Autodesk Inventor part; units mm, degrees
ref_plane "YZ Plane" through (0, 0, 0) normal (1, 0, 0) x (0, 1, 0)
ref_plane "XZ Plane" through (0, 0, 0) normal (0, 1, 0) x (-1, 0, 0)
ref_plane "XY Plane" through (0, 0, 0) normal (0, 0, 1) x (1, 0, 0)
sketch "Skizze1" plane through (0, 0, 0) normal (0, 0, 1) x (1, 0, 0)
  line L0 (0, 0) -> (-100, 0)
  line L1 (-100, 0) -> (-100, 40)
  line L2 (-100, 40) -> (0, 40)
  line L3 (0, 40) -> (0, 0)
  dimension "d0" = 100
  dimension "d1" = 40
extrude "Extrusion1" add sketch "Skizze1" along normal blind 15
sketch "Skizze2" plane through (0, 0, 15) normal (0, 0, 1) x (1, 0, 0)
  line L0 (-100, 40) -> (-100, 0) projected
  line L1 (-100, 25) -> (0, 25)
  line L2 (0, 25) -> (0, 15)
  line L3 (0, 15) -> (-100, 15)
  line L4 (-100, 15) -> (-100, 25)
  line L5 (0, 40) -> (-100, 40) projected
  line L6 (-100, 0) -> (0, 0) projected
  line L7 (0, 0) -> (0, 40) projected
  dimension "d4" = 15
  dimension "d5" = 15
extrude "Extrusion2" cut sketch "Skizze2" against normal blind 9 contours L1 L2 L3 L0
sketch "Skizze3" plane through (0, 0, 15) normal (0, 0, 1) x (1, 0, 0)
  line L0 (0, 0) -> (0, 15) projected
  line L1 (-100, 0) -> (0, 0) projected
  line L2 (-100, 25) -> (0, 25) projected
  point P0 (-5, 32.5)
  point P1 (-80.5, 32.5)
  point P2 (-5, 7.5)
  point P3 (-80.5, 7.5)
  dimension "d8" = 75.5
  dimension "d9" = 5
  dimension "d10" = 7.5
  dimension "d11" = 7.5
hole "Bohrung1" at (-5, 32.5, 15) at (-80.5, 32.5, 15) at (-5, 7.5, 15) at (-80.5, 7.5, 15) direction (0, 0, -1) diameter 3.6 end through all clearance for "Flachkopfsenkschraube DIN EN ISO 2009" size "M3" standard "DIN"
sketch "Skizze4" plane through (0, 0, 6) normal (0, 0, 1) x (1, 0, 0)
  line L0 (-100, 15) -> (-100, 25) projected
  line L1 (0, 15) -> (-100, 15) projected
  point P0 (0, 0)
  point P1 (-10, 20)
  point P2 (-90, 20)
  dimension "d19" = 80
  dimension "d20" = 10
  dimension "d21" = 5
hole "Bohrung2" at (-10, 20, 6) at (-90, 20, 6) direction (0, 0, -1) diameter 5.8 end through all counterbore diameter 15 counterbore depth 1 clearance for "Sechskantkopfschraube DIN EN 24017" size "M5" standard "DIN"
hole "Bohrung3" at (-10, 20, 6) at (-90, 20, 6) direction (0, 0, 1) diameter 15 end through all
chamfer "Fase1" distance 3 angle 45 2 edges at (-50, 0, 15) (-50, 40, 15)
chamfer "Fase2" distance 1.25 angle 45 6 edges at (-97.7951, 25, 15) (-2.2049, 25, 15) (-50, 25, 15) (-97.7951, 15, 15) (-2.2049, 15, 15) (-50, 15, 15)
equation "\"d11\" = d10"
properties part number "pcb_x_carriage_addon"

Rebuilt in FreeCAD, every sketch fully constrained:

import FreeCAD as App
import Part
import Sketcher
Q = App.Units.Quantity


def edges_at(feature, points):
    """Names of the edges that pass closest to the given points."""
    edges = feature.Shape.Edges
    near = lambda p: min(range(len(edges)), key=lambda i: edges[i].distToShape(Part.Vertex(*p))[0])
    return sorted({f"Edge{near(p) + 1}" for p in points})

doc = App.newDocument("Part")
body = doc.addObject("PartDesign::Body", "Body")

# Sketch on XY plane
sketch1 = doc.addObject("Sketcher::SketchObject", "Sketch")
body.addObject(sketch1)
sketch1.AttachmentSupport = (doc.XY_Plane, [""])
sketch1.MapMode = "FlatFace"
sketch1.addGeometry([
    Part.LineSegment(App.Vector(-100, 0, 0), App.Vector(0, 0, 0)),
    Part.LineSegment(App.Vector(0, 0, 0), App.Vector(0, 40, 0)),
    Part.LineSegment(App.Vector(0, 40, 0), App.Vector(-100, 40, 0)),
    Part.LineSegment(App.Vector(-100, 40, 0), App.Vector(-100, 0, 0)),
], False)
sketch1.addConstraint([
    Sketcher.Constraint("Coincident", 0, 2, 1, 1),
    Sketcher.Constraint("Coincident", 1, 2, 2, 1),
    Sketcher.Constraint("Coincident", 2, 2, 3, 1),
    Sketcher.Constraint("Coincident", 3, 2, 0, 1),
    Sketcher.Constraint("Horizontal", 0),
    Sketcher.Constraint("Vertical", 1),
    Sketcher.Constraint("Horizontal", 2),
    Sketcher.Constraint("Vertical", 3),
    Sketcher.Constraint("Coincident", 0, 2, -1, 1),
    Sketcher.Constraint("DistanceX", 0, 1, 0, 2, Q("100 mm")),
    Sketcher.Constraint("DistanceY", 1, 1, 1, 2, Q("40 mm")),
])
pad1 = doc.addObject("PartDesign::Pad", "Pad")
body.addObject(pad1)
pad1.Profile = sketch1
pad1.Length = 15

# Sketch on XY plane
sketch2 = doc.addObject("Sketcher::SketchObject", "Sketch001")
body.addObject(sketch2)
sketch2.AttachmentSupport = (doc.XY_Plane, [""])
sketch2.MapMode = "FlatFace"
sketch2.AttachmentOffset = App.Placement(App.Vector(0, 0, 15), App.Rotation())
sketch2.addGeometry([
    Part.LineSegment(App.Vector(0, 25, 0), App.Vector(-100, 25, 0)),
    Part.LineSegment(App.Vector(-100, 25, 0), App.Vector(-100, 15, 0)),
    Part.LineSegment(App.Vector(-100, 15, 0), App.Vector(0, 15, 0)),
    Part.LineSegment(App.Vector(0, 15, 0), App.Vector(0, 25, 0)),
], False)
sketch2.addConstraint([
    Sketcher.Constraint("Coincident", 0, 2, 1, 1),
    Sketcher.Constraint("Coincident", 1, 2, 2, 1),
    Sketcher.Constraint("Coincident", 2, 2, 3, 1),
    Sketcher.Constraint("Coincident", 3, 2, 0, 1),
    Sketcher.Constraint("Horizontal", 0),
    Sketcher.Constraint("Vertical", 1),
    Sketcher.Constraint("Horizontal", 2),
    Sketcher.Constraint("Vertical", 3),
    Sketcher.Constraint("PointOnObject", 2, 2, -2),
    Sketcher.Constraint("DistanceY", -1, 1, 1, 2, Q("15 mm")),
    Sketcher.Constraint("DistanceX", 0, 2, 0, 1, Q("100 mm")),
    Sketcher.Constraint("DistanceY", 1, 2, 1, 1, Q("10 mm")),
])
pocket1 = doc.addObject("PartDesign::Pocket", "Pocket")
body.addObject(pocket1)
pocket1.Profile = sketch2
pocket1.Length = 9

# Sketch on XY plane
sketch3 = doc.addObject("Sketcher::SketchObject", "Sketch002")
body.addObject(sketch3)
sketch3.AttachmentSupport = (doc.XY_Plane, [""])
sketch3.MapMode = "FlatFace"
sketch3.AttachmentOffset = App.Placement(App.Vector(0, 0, 15), App.Rotation())
sketch3.addGeometry([
    Part.Circle(App.Vector(-5, 32.5, 0), App.Vector(0, 0, 1), 1.8),
    Part.Circle(App.Vector(-80.5, 32.5, 0), App.Vector(0, 0, 1), 1.8),
    Part.Circle(App.Vector(-5, 7.5, 0), App.Vector(0, 0, 1), 1.8),
    Part.Circle(App.Vector(-80.5, 7.5, 0), App.Vector(0, 0, 1), 1.8),
], False)
sketch3.addConstraint([
    Sketcher.Constraint("Equal", 0, 1),
    Sketcher.Constraint("Equal", 1, 2),
    Sketcher.Constraint("Equal", 2, 3),
    Sketcher.Constraint("Horizontal", 0, 3, 1, 3),
    Sketcher.Constraint("Horizontal", 2, 3, 3, 3),
    Sketcher.Constraint("Vertical", 0, 3, 2, 3),
    Sketcher.Constraint("Vertical", 1, 3, 3, 3),
    Sketcher.Constraint("Diameter", 0, Q("3.6 mm")),
    Sketcher.Constraint("DistanceX", 0, 3, -1, 1, Q("5 mm")),
    Sketcher.Constraint("DistanceY", 2, 3, 0, 3, Q("25 mm")),
    Sketcher.Constraint("DistanceY", -1, 1, 0, 3, Q("32.5 mm")),
    Sketcher.Constraint("DistanceX", 1, 3, -1, 1, Q("80.5 mm")),
])
doc.recompute()
hole = doc.addObject("PartDesign::Hole", "Hole")
body.addObject(hole)
hole.Profile = sketch3
hole.ThreadType = "None"
hole.Diameter = 3.6
hole.DepthType = "ThroughAll"

# Sketch on XY plane
sketch4 = doc.addObject("Sketcher::SketchObject", "Sketch003")
body.addObject(sketch4)
sketch4.AttachmentSupport = (doc.XY_Plane, [""])
sketch4.MapMode = "FlatFace"
sketch4.AttachmentOffset = App.Placement(App.Vector(0, 0, 6), App.Rotation())
sketch4.addGeometry([
    Part.Circle(App.Vector(-10, 20, 0), App.Vector(0, 0, 1), 2.9),
    Part.Circle(App.Vector(-90, 20, 0), App.Vector(0, 0, 1), 2.9),
], False)
sketch4.addConstraint([
    Sketcher.Constraint("Equal", 0, 1),
    Sketcher.Constraint("Horizontal", 0, 3, 1, 3),
    Sketcher.Constraint("Diameter", 0, Q("5.8 mm")),
    Sketcher.Constraint("DistanceX", 0, 3, -1, 1, Q("10 mm")),
    Sketcher.Constraint("DistanceY", -1, 1, 0, 3, Q("20 mm")),
    Sketcher.Constraint("DistanceX", 1, 3, -1, 1, Q("90 mm")),
])
doc.recompute()
hole2 = doc.addObject("PartDesign::Hole", "Hole001")
body.addObject(hole2)
hole2.Profile = sketch4
hole2.ThreadType = "None"
hole2.Diameter = 5.8
hole2.DepthType = "ThroughAll"
hole2.HoleCutType = "Counterbore"
hole2.HoleCutDiameter = 15
hole2.HoleCutDepth = 1

# Sketch on XY plane
sketch5 = doc.addObject("Sketcher::SketchObject", "Sketch004")
body.addObject(sketch5)
sketch5.AttachmentSupport = (doc.XY_Plane, [""])
sketch5.MapMode = "FlatFace"
sketch5.AttachmentOffset = App.Placement(App.Vector(0, 0, 6), App.Rotation())
sketch5.addGeometry([
    Part.Circle(App.Vector(-10, 20, 0), App.Vector(0, 0, 1), 8),
    Part.Circle(App.Vector(-90, 20, 0), App.Vector(0, 0, 1), 8),
], False)
sketch5.addConstraint([
    Sketcher.Constraint("Equal", 0, 1),
    Sketcher.Constraint("Horizontal", 0, 3, 1, 3),
    Sketcher.Constraint("Diameter", 0, Q("15 mm")),
    Sketcher.Constraint("DistanceX", 0, 3, -1, 1, Q("10 mm")),
    Sketcher.Constraint("DistanceY", -1, 1, 0, 3, Q("20 mm")),
    Sketcher.Constraint("DistanceX", 1, 3, -1, 1, Q("90 mm")),
])
doc.recompute()
hole3 = doc.addObject("PartDesign::Hole", "Hole002")
body.addObject(hole3)
hole3.Profile = sketch5
hole3.ThreadType = "None"
hole3.Diameter = 15
hole3.DepthType = "ThroughAll"
hole3.Reversed = True
doc.recompute()

chamfer = doc.addObject("PartDesign::Chamfer", "Chamfer")
body.addObject(chamfer)
chamfer.Base = (hole3, edges_at(hole3, [(-50, 0, 15), (-50, 40, 15)]))
chamfer.Size = 3
doc.recompute()

chamfer2 = doc.addObject("PartDesign::Chamfer", "Chamfer001")
body.addObject(chamfer2)
chamfer2.Base = (chamfer, edges_at(chamfer, [
    (-97.795, 25, 15),
    (-2.205, 25, 15),
    (-50, 25, 15),
    (-97.795, 15, 15),
    (-2.205, 15, 15),
    (-50, 15, 15),
]))
chamfer2.Size = 1.25

doc.recompute()
